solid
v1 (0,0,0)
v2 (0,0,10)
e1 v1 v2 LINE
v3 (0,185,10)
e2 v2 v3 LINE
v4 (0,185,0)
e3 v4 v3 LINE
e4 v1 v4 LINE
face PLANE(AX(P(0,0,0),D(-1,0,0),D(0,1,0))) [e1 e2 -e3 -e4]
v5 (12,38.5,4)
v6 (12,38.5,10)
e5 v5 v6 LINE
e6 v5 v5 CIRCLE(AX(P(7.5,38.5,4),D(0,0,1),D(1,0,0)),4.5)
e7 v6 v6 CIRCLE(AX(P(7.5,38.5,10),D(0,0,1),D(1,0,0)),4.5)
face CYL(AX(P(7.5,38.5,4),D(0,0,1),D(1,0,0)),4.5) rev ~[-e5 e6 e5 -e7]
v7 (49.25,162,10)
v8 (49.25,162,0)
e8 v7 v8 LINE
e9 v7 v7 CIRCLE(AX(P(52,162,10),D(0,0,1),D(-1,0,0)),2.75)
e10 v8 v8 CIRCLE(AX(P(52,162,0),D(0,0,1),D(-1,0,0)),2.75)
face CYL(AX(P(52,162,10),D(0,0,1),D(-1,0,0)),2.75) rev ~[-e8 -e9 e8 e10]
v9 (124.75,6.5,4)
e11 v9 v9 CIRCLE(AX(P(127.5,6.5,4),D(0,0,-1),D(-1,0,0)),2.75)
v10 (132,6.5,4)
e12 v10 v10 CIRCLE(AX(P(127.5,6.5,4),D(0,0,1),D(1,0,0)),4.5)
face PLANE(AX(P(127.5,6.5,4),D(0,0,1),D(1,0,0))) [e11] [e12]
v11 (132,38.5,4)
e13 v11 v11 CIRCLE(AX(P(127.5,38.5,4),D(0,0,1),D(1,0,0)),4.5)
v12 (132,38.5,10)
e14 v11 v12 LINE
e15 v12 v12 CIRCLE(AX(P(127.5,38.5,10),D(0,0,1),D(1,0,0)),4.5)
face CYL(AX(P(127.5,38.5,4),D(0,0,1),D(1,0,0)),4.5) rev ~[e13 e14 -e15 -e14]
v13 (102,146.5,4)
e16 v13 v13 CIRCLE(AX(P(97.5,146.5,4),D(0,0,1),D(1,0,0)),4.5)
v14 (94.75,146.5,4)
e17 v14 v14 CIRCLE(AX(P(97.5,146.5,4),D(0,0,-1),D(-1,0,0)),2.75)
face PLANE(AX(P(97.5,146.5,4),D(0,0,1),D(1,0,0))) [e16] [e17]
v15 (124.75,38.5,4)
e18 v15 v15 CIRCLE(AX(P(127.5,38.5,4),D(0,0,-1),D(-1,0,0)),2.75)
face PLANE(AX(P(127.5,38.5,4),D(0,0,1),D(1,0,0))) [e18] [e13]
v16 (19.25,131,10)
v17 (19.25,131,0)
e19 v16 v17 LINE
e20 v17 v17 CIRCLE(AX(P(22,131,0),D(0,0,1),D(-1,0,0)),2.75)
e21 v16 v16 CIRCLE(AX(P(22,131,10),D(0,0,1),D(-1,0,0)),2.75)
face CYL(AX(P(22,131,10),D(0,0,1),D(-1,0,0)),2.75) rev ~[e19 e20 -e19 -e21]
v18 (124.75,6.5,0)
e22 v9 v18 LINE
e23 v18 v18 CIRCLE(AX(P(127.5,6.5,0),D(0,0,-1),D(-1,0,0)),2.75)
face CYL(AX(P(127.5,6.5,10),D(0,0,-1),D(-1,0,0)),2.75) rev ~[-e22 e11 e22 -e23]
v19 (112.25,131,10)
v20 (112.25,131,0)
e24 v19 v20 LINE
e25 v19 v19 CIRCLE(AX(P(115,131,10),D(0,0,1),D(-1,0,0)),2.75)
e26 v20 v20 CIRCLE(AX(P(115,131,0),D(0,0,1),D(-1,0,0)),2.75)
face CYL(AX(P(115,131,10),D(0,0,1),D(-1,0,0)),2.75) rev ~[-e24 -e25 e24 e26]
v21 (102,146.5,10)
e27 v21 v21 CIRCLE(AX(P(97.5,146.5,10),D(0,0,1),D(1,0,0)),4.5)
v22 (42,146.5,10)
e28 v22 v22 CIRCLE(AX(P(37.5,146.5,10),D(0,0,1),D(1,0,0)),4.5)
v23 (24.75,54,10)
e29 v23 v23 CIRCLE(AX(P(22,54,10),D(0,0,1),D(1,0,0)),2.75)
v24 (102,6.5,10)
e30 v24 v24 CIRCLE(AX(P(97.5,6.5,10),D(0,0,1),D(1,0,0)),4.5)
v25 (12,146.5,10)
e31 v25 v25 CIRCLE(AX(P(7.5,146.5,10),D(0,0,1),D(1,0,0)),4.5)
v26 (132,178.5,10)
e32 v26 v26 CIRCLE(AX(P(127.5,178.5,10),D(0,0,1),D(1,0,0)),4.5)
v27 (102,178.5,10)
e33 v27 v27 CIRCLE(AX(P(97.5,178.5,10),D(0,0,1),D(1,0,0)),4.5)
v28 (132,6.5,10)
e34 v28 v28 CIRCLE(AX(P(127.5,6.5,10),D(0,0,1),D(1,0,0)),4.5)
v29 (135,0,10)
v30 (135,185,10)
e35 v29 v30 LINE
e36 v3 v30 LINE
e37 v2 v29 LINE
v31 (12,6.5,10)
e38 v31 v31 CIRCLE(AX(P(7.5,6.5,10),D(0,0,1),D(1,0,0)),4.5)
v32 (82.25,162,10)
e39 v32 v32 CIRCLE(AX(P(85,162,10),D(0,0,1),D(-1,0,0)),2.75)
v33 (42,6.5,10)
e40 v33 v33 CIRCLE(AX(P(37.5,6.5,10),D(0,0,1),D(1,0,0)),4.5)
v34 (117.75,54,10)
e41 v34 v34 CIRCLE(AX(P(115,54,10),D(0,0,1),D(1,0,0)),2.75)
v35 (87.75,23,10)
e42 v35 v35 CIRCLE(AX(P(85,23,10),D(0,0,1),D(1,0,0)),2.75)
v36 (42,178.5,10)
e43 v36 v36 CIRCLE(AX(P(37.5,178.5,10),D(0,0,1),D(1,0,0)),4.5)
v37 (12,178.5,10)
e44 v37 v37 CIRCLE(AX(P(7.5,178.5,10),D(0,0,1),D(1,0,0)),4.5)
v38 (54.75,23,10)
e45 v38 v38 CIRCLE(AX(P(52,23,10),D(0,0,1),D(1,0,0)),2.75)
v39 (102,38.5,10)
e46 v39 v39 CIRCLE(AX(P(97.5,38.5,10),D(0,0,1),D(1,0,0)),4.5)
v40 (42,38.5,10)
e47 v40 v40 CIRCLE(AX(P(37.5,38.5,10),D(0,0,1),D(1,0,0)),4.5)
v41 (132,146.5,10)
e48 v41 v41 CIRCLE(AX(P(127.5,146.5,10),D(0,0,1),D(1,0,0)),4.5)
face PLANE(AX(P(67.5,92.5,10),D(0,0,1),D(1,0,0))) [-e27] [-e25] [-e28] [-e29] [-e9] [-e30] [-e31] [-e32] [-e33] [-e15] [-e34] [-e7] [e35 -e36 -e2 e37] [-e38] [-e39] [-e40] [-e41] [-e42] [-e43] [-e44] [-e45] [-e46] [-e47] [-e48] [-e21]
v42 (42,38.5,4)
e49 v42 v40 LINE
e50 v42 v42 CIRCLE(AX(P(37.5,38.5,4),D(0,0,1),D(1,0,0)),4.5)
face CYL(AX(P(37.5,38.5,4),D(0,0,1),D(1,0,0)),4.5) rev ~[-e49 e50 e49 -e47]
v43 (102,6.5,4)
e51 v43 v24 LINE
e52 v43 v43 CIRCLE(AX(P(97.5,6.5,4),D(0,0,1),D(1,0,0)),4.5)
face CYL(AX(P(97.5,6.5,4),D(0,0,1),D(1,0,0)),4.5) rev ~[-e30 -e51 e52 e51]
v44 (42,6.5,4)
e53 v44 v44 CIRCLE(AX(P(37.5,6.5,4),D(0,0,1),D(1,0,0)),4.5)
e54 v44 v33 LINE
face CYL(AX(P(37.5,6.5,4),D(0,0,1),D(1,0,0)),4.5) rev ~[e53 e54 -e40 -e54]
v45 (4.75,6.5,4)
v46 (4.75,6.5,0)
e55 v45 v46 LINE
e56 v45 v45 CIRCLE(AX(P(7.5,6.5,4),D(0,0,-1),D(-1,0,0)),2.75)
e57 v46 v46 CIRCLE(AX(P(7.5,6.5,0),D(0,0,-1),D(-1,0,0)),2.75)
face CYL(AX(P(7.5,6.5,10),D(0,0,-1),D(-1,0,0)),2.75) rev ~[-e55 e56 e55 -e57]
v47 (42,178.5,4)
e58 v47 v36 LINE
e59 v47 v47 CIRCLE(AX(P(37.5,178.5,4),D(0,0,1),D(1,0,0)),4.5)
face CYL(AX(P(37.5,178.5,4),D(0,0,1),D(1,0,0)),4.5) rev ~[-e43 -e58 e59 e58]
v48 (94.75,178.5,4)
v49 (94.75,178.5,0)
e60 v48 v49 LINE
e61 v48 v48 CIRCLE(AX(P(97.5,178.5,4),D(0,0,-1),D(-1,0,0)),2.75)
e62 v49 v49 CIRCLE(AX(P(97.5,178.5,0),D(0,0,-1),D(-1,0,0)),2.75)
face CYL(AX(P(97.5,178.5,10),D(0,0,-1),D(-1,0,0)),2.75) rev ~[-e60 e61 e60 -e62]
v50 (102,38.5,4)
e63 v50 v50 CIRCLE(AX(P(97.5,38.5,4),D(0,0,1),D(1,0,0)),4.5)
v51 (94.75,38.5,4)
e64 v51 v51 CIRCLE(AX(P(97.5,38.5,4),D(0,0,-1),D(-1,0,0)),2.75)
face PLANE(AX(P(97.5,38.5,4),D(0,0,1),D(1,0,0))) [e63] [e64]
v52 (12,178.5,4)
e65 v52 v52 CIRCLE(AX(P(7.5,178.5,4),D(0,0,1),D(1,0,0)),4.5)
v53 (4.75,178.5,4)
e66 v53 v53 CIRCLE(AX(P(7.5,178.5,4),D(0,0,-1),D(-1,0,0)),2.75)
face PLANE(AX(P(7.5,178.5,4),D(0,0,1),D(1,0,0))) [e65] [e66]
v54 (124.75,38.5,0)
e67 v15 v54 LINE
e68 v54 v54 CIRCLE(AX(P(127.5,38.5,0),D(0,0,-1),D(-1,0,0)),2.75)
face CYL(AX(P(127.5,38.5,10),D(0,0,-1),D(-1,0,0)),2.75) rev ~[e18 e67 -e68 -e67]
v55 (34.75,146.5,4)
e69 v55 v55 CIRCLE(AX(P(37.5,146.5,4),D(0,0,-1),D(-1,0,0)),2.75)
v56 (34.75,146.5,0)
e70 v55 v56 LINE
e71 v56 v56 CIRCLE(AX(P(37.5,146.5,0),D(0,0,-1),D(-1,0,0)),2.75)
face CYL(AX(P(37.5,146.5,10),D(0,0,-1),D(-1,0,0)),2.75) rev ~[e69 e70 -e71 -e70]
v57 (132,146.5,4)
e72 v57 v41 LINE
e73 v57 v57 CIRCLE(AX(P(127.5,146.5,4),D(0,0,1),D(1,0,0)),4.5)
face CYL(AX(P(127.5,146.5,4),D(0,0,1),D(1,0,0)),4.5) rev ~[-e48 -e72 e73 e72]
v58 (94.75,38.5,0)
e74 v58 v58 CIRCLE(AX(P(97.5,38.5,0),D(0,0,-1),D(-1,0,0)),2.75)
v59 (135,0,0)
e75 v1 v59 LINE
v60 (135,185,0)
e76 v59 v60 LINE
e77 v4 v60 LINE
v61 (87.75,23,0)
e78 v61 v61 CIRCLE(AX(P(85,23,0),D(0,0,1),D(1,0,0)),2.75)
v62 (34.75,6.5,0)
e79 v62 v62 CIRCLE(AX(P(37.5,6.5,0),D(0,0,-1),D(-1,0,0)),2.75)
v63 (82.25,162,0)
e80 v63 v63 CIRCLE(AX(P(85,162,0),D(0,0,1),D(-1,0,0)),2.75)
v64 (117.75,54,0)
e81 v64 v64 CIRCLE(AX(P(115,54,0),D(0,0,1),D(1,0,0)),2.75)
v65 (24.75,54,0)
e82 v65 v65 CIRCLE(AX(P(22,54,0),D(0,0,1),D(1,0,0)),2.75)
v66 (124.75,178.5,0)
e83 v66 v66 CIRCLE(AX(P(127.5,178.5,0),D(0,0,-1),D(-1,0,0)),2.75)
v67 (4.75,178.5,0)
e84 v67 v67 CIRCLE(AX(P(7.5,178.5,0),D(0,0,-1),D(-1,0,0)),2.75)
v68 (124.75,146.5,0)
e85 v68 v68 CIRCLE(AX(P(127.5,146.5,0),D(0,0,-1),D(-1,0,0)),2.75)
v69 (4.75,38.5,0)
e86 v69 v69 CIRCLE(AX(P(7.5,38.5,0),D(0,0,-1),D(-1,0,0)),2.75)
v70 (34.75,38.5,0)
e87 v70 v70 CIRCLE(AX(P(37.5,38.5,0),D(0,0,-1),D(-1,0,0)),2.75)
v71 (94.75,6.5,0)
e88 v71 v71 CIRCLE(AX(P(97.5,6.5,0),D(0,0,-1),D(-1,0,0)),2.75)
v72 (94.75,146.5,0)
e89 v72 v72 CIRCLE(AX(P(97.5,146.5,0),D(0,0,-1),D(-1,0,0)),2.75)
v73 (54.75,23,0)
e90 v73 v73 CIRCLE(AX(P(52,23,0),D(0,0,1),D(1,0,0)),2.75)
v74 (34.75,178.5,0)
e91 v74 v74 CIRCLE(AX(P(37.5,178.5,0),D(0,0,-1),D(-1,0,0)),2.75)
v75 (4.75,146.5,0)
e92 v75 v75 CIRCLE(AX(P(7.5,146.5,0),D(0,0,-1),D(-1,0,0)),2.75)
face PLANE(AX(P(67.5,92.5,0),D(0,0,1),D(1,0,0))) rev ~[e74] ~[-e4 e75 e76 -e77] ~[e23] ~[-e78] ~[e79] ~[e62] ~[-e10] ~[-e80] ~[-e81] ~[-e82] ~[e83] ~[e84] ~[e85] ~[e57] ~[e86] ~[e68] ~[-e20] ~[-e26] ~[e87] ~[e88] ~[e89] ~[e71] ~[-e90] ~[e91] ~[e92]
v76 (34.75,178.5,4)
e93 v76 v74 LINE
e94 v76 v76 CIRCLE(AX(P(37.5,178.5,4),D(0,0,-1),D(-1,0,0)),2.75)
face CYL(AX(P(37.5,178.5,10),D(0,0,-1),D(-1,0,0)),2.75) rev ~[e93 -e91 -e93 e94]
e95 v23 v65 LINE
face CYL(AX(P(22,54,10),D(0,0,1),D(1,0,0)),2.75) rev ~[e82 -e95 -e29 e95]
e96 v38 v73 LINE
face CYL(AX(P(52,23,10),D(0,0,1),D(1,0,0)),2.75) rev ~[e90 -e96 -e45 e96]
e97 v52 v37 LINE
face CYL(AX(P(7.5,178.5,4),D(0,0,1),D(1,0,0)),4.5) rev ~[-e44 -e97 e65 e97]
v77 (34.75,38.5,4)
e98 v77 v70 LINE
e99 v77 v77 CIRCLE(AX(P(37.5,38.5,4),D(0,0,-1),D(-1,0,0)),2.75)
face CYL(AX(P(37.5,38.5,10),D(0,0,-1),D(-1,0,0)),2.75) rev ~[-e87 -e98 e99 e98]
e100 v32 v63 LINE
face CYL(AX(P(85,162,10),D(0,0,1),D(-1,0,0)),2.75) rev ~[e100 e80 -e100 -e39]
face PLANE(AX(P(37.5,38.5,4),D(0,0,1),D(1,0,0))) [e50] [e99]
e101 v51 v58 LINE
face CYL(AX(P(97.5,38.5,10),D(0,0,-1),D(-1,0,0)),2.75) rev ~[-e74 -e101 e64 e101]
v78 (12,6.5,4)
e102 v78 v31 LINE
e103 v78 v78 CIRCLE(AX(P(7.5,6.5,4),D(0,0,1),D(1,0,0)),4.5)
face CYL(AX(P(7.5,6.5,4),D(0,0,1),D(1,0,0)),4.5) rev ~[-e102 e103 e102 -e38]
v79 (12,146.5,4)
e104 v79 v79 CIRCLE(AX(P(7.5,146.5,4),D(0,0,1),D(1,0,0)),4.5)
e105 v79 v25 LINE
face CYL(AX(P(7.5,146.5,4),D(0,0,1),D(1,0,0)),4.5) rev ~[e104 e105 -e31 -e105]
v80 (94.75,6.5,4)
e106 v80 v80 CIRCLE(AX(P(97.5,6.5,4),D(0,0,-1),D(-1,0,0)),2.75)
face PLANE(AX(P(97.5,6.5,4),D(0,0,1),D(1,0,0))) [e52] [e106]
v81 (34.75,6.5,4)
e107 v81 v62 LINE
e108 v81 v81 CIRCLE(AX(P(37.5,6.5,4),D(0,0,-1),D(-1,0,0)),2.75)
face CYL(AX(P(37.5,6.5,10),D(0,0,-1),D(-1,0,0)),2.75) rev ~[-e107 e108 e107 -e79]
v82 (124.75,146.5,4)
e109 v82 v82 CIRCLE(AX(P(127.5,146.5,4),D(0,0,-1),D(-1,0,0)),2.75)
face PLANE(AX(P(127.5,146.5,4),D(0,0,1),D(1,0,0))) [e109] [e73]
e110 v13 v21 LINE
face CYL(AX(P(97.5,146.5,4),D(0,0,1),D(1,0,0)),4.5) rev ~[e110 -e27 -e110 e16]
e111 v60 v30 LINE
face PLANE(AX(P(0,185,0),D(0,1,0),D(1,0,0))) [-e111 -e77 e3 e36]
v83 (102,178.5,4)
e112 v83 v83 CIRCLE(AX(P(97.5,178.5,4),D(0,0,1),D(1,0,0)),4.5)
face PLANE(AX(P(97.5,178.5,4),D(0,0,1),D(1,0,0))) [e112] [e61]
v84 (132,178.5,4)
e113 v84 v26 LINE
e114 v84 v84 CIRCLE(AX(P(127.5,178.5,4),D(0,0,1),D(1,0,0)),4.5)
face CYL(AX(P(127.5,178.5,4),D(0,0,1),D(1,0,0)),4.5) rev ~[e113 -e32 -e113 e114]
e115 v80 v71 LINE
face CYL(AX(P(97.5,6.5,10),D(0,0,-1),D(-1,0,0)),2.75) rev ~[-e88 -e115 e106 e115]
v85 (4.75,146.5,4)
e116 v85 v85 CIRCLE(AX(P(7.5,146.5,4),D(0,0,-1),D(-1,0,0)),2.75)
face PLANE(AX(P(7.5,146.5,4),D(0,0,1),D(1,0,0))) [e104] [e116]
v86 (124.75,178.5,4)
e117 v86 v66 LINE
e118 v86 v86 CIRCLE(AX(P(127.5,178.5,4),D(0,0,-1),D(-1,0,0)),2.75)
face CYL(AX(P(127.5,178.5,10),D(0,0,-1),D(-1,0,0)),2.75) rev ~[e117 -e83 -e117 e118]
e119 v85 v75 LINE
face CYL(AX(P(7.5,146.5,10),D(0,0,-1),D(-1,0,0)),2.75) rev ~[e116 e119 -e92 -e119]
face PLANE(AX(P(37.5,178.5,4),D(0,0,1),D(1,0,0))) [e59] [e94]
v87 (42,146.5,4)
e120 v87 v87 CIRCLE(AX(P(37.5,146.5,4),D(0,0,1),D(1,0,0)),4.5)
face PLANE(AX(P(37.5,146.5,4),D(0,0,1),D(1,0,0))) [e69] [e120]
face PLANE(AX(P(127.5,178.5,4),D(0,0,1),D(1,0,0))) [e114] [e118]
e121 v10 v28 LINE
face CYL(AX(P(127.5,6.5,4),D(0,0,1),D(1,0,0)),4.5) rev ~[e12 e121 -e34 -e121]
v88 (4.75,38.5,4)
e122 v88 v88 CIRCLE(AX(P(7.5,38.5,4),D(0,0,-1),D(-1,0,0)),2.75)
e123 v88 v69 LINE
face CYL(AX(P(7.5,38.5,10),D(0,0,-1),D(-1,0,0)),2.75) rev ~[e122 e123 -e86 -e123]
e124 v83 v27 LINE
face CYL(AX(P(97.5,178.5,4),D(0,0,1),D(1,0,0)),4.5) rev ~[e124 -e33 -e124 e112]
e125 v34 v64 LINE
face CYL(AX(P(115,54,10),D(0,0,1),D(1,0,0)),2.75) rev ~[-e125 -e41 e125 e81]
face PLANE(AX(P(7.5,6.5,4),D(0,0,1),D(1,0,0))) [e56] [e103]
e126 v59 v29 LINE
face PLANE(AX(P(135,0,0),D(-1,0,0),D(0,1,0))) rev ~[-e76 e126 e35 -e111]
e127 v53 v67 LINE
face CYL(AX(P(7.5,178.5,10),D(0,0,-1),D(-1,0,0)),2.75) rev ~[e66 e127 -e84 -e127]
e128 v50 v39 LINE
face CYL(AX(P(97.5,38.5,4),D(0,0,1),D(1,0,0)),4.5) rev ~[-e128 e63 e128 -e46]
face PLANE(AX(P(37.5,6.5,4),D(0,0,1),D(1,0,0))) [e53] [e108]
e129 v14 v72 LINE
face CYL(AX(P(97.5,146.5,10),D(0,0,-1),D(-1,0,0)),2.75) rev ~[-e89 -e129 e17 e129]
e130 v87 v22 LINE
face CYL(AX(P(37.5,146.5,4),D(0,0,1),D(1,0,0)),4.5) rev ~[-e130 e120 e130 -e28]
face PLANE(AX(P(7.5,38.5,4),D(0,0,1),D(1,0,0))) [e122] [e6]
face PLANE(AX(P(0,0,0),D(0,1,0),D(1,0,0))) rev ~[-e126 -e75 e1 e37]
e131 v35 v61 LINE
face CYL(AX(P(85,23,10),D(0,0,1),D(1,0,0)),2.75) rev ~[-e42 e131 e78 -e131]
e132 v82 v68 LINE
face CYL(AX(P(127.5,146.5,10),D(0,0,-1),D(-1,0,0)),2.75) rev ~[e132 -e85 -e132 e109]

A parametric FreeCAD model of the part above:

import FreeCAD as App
import Part
import Sketcher

V = App.Vector
Q = App.Units.Quantity

doc = App.newDocument("Part")
body = doc.addObject("PartDesign::Body", "Body")

# Sketch on XY plane
sketch1 = body.newObject("Sketcher::SketchObject", "Sketch")
sketch1.AttachmentSupport = (doc.getObject("XY_Plane"), [""])
sketch1.MapMode = "FlatFace"
sketch1.addGeometry([
    Part.LineSegment(V(0, 185, 0), V(0, 0, 0)),
    Part.LineSegment(V(0, 0, 0), V(135, 0, 0)),
    Part.LineSegment(V(135, 0, 0), V(135, 185, 0)),
    Part.LineSegment(V(135, 185, 0), V(0, 185, 0)),
], False)
sketch1.addConstraint([
    Sketcher.Constraint("Coincident", 0, 2, 1, 1),
    Sketcher.Constraint("Coincident", 1, 2, 2, 1),
    Sketcher.Constraint("Coincident", 2, 2, 3, 1),
    Sketcher.Constraint("Coincident", 3, 2, 0, 1),
    Sketcher.Constraint("Vertical", 0),
    Sketcher.Constraint("Horizontal", 1),
    Sketcher.Constraint("Vertical", 2),
    Sketcher.Constraint("Horizontal", 3),
    Sketcher.Constraint("Coincident", 0, 2, -1, 1),
    Sketcher.Constraint("DistanceX", 1, 1, 1, 2, Q("135 mm")),
    Sketcher.Constraint("DistanceY", 0, 2, 0, 1, Q("185 mm")),
])
pad1 = body.newObject("PartDesign::Pad", "Pad")
pad1.Profile = sketch1
pad1.Length = 10

# Sketch on XY plane
sketch2 = body.newObject("Sketcher::SketchObject", "Sketch001")
sketch2.AttachmentSupport = (doc.getObject("XY_Plane"), [""])
sketch2.MapMode = "FlatFace"
sketch2.AttachmentOffset = App.Placement(V(0, 0, 10), App.Rotation())
sketch2.addGeometry([
    Part.Circle(V(7.5, 178.5, 0), V(0, 0, 1), 2.8),  # 0
    Part.Circle(V(37.5, 178.5, 0), V(0, 0, 1), 2.8),  # 1
    Part.Circle(V(37.5, 146.5, 0), V(0, 0, 1), 2.8),  # 2
    Part.Circle(V(7.5, 146.5, 0), V(0, 0, 1), 2.8),  # 3
    Part.Circle(V(7.5, 38.5, 0), V(0, 0, 1), 2.8),  # 4
    Part.Circle(V(37.5, 38.5, 0), V(0, 0, 1), 2.8),  # 5
    Part.Circle(V(7.5, 6.5, 0), V(0, 0, 1), 2.8),  # 6
    Part.Circle(V(37.5, 6.5, 0), V(0, 0, 1), 2.8),  # 7
    Part.Circle(V(97.5, 6.5, 0), V(0, 0, 1), 2.8),  # 8
    Part.Circle(V(127.5, 6.5, 0), V(0, 0, 1), 2.8),  # 9
    Part.Circle(V(97.5, 38.5, 0), V(0, 0, 1), 2.8),  # 10
    Part.Circle(V(127.5, 38.5, 0), V(0, 0, 1), 2.8),  # 11
    Part.Circle(V(127.5, 146.5, 0), V(0, 0, 1), 2.8),  # 12
    Part.Circle(V(97.5, 146.5, 0), V(0, 0, 1), 2.8),  # 13
    Part.Circle(V(97.5, 178.5, 0), V(0, 0, 1), 2.8),  # 14
    Part.Circle(V(127.5, 178.5, 0), V(0, 0, 1), 2.8),  # 15
], False)
sketch2.addConstraint([
    Sketcher.Constraint("Equal", 0, 1),
    Sketcher.Constraint("Equal", 1, 2),
    Sketcher.Constraint("Equal", 2, 3),
    Sketcher.Constraint("Equal", 3, 4),
    Sketcher.Constraint("Equal", 4, 5),
    Sketcher.Constraint("Equal", 5, 6),
    Sketcher.Constraint("Equal", 6, 7),
    Sketcher.Constraint("Equal", 7, 8),
    Sketcher.Constraint("Equal", 8, 9),
    Sketcher.Constraint("Equal", 9, 10),
    Sketcher.Constraint("Equal", 10, 11),
    Sketcher.Constraint("Equal", 11, 12),
    Sketcher.Constraint("Equal", 12, 13),
    Sketcher.Constraint("Equal", 13, 14),
    Sketcher.Constraint("Equal", 14, 15),
    Sketcher.Constraint("Horizontal", 0, 3, 1, 3),
    Sketcher.Constraint("Horizontal", 2, 3, 3, 3),
    Sketcher.Constraint("Horizontal", 4, 3, 5, 3),
    Sketcher.Constraint("Horizontal", 6, 3, 7, 3),
    Sketcher.Constraint("Horizontal", 7, 3, 8, 3),
    Sketcher.Constraint("Horizontal", 8, 3, 9, 3),
    Sketcher.Constraint("Horizontal", 5, 3, 10, 3),
    Sketcher.Constraint("Horizontal", 10, 3, 11, 3),
    Sketcher.Constraint("Horizontal", 3, 3, 12, 3),
    Sketcher.Constraint("Horizontal", 12, 3, 13, 3),
    Sketcher.Constraint("Horizontal", 1, 3, 14, 3),
    Sketcher.Constraint("Horizontal", 14, 3, 15, 3),
    Sketcher.Constraint("Vertical", 1, 3, 2, 3),
    Sketcher.Constraint("Vertical", 0, 3, 3, 3),
    Sketcher.Constraint("Vertical", 3, 3, 4, 3),
    Sketcher.Constraint("Vertical", 2, 3, 5, 3),
    Sketcher.Constraint("Vertical", 4, 3, 6, 3),
    Sketcher.Constraint("Vertical", 5, 3, 7, 3),
    Sketcher.Constraint("Vertical", 8, 3, 10, 3),
    Sketcher.Constraint("Vertical", 9, 3, 11, 3),
    Sketcher.Constraint("Vertical", 11, 3, 12, 3),
    Sketcher.Constraint("Vertical", 10, 3, 13, 3),
    Sketcher.Constraint("Vertical", 13, 3, 14, 3),
    Sketcher.Constraint("Vertical", 12, 3, 15, 3),
    Sketcher.Constraint("Diameter", 0, Q("5.5 mm")),
    Sketcher.Constraint("DistanceX", 0, 3, 1, 3, Q("30 mm")),
    Sketcher.Constraint("DistanceY", 2, 3, 1, 3, Q("32 mm")),
    Sketcher.Constraint("DistanceY", 4, 3, 3, 3, Q("108 mm")),
    Sketcher.Constraint("DistanceY", 6, 3, 4, 3, Q("32 mm")),
    Sketcher.Constraint("DistanceX", 7, 3, 8, 3, Q("60 mm")),
    Sketcher.Constraint("DistanceX", 8, 3, 9, 3, Q("30 mm")),
    Sketcher.Constraint("DistanceX", -1, 1, 0, 3, Q("7.5 mm")),
    Sketcher.Constraint("DistanceY", -1, 1, 0, 3, Q("178.5 mm")),
])
doc.recompute()
hole = body.newObject("PartDesign::Hole", "Hole")
hole.Profile = sketch2
hole.ThreadType = "None"
hole.Diameter = 5.5
hole.DepthType = "ThroughAll"
hole.HoleCutType = "Counterbore"
hole.HoleCutDiameter = 9
hole.HoleCutDepth = 6

# Sketch on XY plane
sketch3 = body.newObject("Sketcher::SketchObject", "Sketch002")
sketch3.AttachmentSupport = (doc.getObject("XY_Plane"), [""])
sketch3.MapMode = "FlatFace"
sketch3.AttachmentOffset = App.Placement(V(0, 0, 10), App.Rotation())
sketch3.addGeometry([
    Part.Circle(V(22, 54, 0), V(0, 0, 1), 2.8),  # 0
    Part.Circle(V(52, 23, 0), V(0, 0, 1), 2.8),  # 1
    Part.Circle(V(85, 23, 0), V(0, 0, 1), 2.8),  # 2
    Part.Circle(V(115, 54, 0), V(0, 0, 1), 2.8),  # 3
    Part.Circle(V(52, 162, 0), V(0, 0, 1), 2.8),  # 4
    Part.Circle(V(22, 131, 0), V(0, 0, 1), 2.8),  # 5
    Part.Circle(V(115, 131, 0), V(0, 0, 1), 2.8),  # 6
    Part.Circle(V(85, 162, 0), V(0, 0, 1), 2.8),  # 7
], False)
sketch3.addConstraint([
    Sketcher.Constraint("Equal", 0, 1),
    Sketcher.Constraint("Equal", 1, 2),
    Sketcher.Constraint("Equal", 2, 3),
    Sketcher.Constraint("Equal", 3, 4),
    Sketcher.Constraint("Equal", 4, 5),
    Sketcher.Constraint("Equal", 5, 6),
    Sketcher.Constraint("Equal", 6, 7),
    Sketcher.Constraint("Horizontal", 1, 3, 2, 3),
    Sketcher.Constraint("Horizontal", 0, 3, 3, 3),
    Sketcher.Constraint("Horizontal", 5, 3, 6, 3),
    Sketcher.Constraint("Horizontal", 4, 3, 7, 3),
    Sketcher.Constraint("Vertical", 1, 3, 4, 3),
    Sketcher.Constraint("Vertical", 0, 3, 5, 3),
    Sketcher.Constraint("Vertical", 3, 3, 6, 3),
    Sketcher.Constraint("Vertical", 2, 3, 7, 3),
    Sketcher.Constraint("Diameter", 0, Q("5.5 mm")),
    Sketcher.Constraint("DistanceX", -1, 1, 0, 3, Q("22 mm")),
    Sketcher.Constraint("DistanceY", -1, 1, 0, 3, Q("54 mm")),
    Sketcher.Constraint("DistanceX", -1, 1, 1, 3, Q("52 mm")),
    Sketcher.Constraint("DistanceY", -1, 1, 1, 3, Q("23 mm")),
    Sketcher.Constraint("DistanceX", -1, 1, 2, 3, Q("85 mm")),
    Sketcher.Constraint("DistanceX", -1, 1, 3, 3, Q("115 mm")),
    Sketcher.Constraint("DistanceY", -1, 1, 4, 3, Q("162 mm")),
    Sketcher.Constraint("DistanceY", -1, 1, 5, 3, Q("131 mm")),
])
pocket1 = body.newObject("PartDesign::Pocket", "Pocket")
pocket1.Profile = sketch3
pocket1.Type = "ThroughAll"

doc.recompute()
